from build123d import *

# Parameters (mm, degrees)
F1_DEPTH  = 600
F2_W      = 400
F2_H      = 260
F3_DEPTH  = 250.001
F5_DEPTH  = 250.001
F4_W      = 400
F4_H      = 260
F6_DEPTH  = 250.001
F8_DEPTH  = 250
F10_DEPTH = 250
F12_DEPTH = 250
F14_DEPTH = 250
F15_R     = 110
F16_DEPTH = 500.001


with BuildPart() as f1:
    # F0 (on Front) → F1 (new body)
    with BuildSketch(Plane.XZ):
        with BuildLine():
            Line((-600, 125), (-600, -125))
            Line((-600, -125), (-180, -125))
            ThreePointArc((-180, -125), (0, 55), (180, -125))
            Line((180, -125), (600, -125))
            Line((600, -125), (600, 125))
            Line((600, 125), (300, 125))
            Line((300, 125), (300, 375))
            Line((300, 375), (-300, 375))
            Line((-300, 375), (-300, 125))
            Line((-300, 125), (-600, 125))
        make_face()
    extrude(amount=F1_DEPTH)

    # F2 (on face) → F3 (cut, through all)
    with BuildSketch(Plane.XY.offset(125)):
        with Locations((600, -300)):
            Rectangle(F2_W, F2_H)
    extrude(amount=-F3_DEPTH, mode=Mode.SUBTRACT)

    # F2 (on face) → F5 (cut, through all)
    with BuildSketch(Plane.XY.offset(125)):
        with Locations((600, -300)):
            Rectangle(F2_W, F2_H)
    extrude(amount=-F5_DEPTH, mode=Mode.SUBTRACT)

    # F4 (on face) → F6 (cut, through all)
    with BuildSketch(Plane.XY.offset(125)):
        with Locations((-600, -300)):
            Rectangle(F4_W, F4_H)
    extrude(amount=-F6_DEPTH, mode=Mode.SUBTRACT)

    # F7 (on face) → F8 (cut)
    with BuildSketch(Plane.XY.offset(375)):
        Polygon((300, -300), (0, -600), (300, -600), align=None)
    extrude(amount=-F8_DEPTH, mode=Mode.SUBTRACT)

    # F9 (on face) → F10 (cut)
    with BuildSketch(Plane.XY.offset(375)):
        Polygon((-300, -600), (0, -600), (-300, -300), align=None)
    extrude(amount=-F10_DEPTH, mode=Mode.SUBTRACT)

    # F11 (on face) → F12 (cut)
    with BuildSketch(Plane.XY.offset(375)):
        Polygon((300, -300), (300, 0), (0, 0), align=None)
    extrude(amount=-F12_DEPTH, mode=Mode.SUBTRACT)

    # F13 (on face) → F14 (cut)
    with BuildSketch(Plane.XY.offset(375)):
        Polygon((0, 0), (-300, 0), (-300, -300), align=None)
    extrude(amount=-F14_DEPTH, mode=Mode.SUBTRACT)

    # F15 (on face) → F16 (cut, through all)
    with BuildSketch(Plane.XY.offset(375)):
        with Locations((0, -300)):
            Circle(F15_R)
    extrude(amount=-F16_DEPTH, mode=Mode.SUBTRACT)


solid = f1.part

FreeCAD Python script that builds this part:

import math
import FreeCAD as App
import Part
import Sketcher
Q = App.Units.Quantity


def add_polygon(sketch, points):
    """Adds a closed chain of lines whose ends are joined by coincident constraints."""
    first, n = sketch.GeometryCount, len(points)
    for a, b in zip(points, points[1:] + points[:1]):
        sketch.addGeometry(Part.LineSegment(App.Vector(*a, 0), App.Vector(*b, 0)), False)
    for i in range(n):
        sketch.addConstraint(Sketcher.Constraint("Coincident", first + i, 2, first + (i + 1) % n, 1))

doc = App.newDocument("Part")
body = doc.addObject("PartDesign::Body", "Body")

sketch1 = doc.addObject("Sketcher::SketchObject", "Sketch")
body.addObject(sketch1)
sketch1.AttachmentSupport = (doc.XZ_Plane, [""])
sketch1.MapMode = "FlatFace"
sketch1.addGeometry(Part.LineSegment(App.Vector(-600, 125, 0), App.Vector(-600, -125, 0)), False)
sketch1.addGeometry(Part.LineSegment(App.Vector(-600, -125, 0), App.Vector(-180, -125, 0)), False)
sketch1.addGeometry(Part.ArcOfCircle(Part.Circle(App.Vector(0, -125, 0), App.Vector(0, 0, 1), 180), math.radians(0), math.radians(180)), False)
sketch1.addGeometry(Part.LineSegment(App.Vector(180, -125, 0), App.Vector(600, -125, 0)), False)
sketch1.addGeometry(Part.LineSegment(App.Vector(600, -125, 0), App.Vector(600, 125, 0)), False)
sketch1.addGeometry(Part.LineSegment(App.Vector(600, 125, 0), App.Vector(300, 125, 0)), False)
sketch1.addGeometry(Part.LineSegment(App.Vector(300, 125, 0), App.Vector(300, 375, 0)), False)
sketch1.addGeometry(Part.LineSegment(App.Vector(300, 375, 0), App.Vector(-300, 375, 0)), False)
sketch1.addGeometry(Part.LineSegment(App.Vector(-300, 375, 0), App.Vector(-300, 125, 0)), False)
sketch1.addGeometry(Part.LineSegment(App.Vector(-300, 125, 0), App.Vector(-600, 125, 0)), False)
sketch1.addConstraint(Sketcher.Constraint("Coincident", 0, 2, 1, 1))
sketch1.addConstraint(Sketcher.Constraint("Coincident", 1, 2, 2, 2))
sketch1.addConstraint(Sketcher.Constraint("Coincident", 2, 1, 3, 1))
sketch1.addConstraint(Sketcher.Constraint("Coincident", 3, 2, 4, 1))
sketch1.addConstraint(Sketcher.Constraint("Coincident", 4, 2, 5, 1))
sketch1.addConstraint(Sketcher.Constraint("Coincident", 5, 2, 6, 1))
sketch1.addConstraint(Sketcher.Constraint("Coincident", 6, 2, 7, 1))
sketch1.addConstraint(Sketcher.Constraint("Coincident", 7, 2, 8, 1))
sketch1.addConstraint(Sketcher.Constraint("Coincident", 8, 2, 9, 1))
sketch1.addConstraint(Sketcher.Constraint("Coincident", 9, 2, 0, 1))
sketch1.addConstraint(Sketcher.Constraint("Vertical", 0))
sketch1.addConstraint(Sketcher.Constraint("Horizontal", 1))
sketch1.addConstraint(Sketcher.Constraint("Horizontal", 3))
sketch1.addConstraint(Sketcher.Constraint("Vertical", 4))
sketch1.addConstraint(Sketcher.Constraint("Horizontal", 5))
sketch1.addConstraint(Sketcher.Constraint("Vertical", 6))
sketch1.addConstraint(Sketcher.Constraint("Horizontal", 7))
sketch1.addConstraint(Sketcher.Constraint("Vertical", 8))
sketch1.addConstraint(Sketcher.Constraint("Horizontal", 9))
sketch1.addConstraint(Sketcher.Constraint("Symmetric", 0, 2, 4, 2, -1, 1))
sketch1.addConstraint(Sketcher.Constraint("Symmetric", 1, 2, 2, 1, -2))
sketch1.addConstraint(Sketcher.Constraint("Symmetric", 5, 2, 8, 2, -2))
sketch1.addConstraint(Sketcher.Constraint("Horizontal", 2, 3, 0, 2))
sketch1.addConstraint(Sketcher.Constraint("Equal", 4, 6))
sketch1.addConstraint(Sketcher.Constraint("Radius", 2, Q("180 mm")))
sketch1.addConstraint(Sketcher.Constraint("DistanceX", 1, 1, 1, 2, Q("420 mm")))
sketch1.addConstraint(Sketcher.Constraint("DistanceX", 5, 2, 5, 1, Q("300 mm")))
sketch1.addConstraint(Sketcher.Constraint("DistanceY", 0, 2, 0, 1, Q("250 mm")))
pad1 = doc.addObject("PartDesign::Pad", "Pad")
body.addObject(pad1)
pad1.Profile = sketch1
pad1.Length = 600

sketch2 = doc.addObject("Sketcher::SketchObject", "Sketch001")
body.addObject(sketch2)
sketch2.AttachmentSupport = (doc.XY_Plane, [""])
sketch2.MapMode = "FlatFace"
sketch2.AttachmentOffset = App.Placement(App.Vector(0, 0, 125), App.Rotation())
add_polygon(sketch2, [(400, -170), (400, -430), (800, -430), (800, -170)])
sketch2.addConstraint(Sketcher.Constraint("Vertical", 0))
sketch2.addConstraint(Sketcher.Constraint("Horizontal", 1))
sketch2.addConstraint(Sketcher.Constraint("Vertical", 2))
sketch2.addConstraint(Sketcher.Constraint("Horizontal", 3))
sketch2.addConstraint(Sketcher.Constraint("DistanceX", 1, 1, 1, 2, Q("400 mm")))
sketch2.addConstraint(Sketcher.Constraint("DistanceY", 0, 2, 0, 1, Q("260 mm")))
sketch2.addConstraint(Sketcher.Constraint("DistanceX", -1, 1, 0, 2, Q("400 mm")))
sketch2.addConstraint(Sketcher.Constraint("DistanceY", 0, 2, -1, 1, Q("430 mm")))
pocket1 = doc.addObject("PartDesign::Pocket", "Pocket")
body.addObject(pocket1)
pocket1.Profile = sketch2
pocket1.Type = "ThroughAll"

sketch3 = doc.addObject("Sketcher::SketchObject", "Sketch002")
body.addObject(sketch3)
sketch3.AttachmentSupport = (doc.XY_Plane, [""])
sketch3.MapMode = "FlatFace"
sketch3.AttachmentOffset = App.Placement(App.Vector(0, 0, 125), App.Rotation())
add_polygon(sketch3, [(400, -170), (400, -430), (800, -430), (800, -170)])
sketch3.addConstraint(Sketcher.Constraint("Vertical", 0))
sketch3.addConstraint(Sketcher.Constraint("Horizontal", 1))
sketch3.addConstraint(Sketcher.Constraint("Vertical", 2))
sketch3.addConstraint(Sketcher.Constraint("Horizontal", 3))
sketch3.addConstraint(Sketcher.Constraint("DistanceX", 1, 1, 1, 2, Q("400 mm")))
sketch3.addConstraint(Sketcher.Constraint("DistanceY", 0, 2, 0, 1, Q("260 mm")))
sketch3.addConstraint(Sketcher.Constraint("DistanceX", -1, 1, 0, 2, Q("400 mm")))
sketch3.addConstraint(Sketcher.Constraint("DistanceY", 0, 2, -1, 1, Q("430 mm")))
pocket2 = doc.addObject("PartDesign::Pocket", "Pocket001")
body.addObject(pocket2)
pocket2.Profile = sketch3
pocket2.Type = "ThroughAll"

sketch4 = doc.addObject("Sketcher::SketchObject", "Sketch003")
body.addObject(sketch4)
sketch4.AttachmentSupport = (doc.XY_Plane, [""])
sketch4.MapMode = "FlatFace"
sketch4.AttachmentOffset = App.Placement(App.Vector(0, 0, 125), App.Rotation())
add_polygon(sketch4, [(-800, -170), (-800, -430), (-400, -430), (-400, -170)])
sketch4.addConstraint(Sketcher.Constraint("Vertical", 0))
sketch4.addConstraint(Sketcher.Constraint("Horizontal", 1))
sketch4.addConstraint(Sketcher.Constraint("Vertical", 2))
sketch4.addConstraint(Sketcher.Constraint("Horizontal", 3))
sketch4.addConstraint(Sketcher.Constraint("DistanceX", 1, 1, 1, 2, Q("400 mm")))
sketch4.addConstraint(Sketcher.Constraint("DistanceY", 0, 2, 0, 1, Q("260 mm")))
sketch4.addConstraint(Sketcher.Constraint("DistanceX", 0, 2, -1, 1, Q("800 mm")))
sketch4.addConstraint(Sketcher.Constraint("DistanceY", 0, 2, -1, 1, Q("430 mm")))
pocket3 = doc.addObject("PartDesign::Pocket", "Pocket002")
body.addObject(pocket3)
pocket3.Profile = sketch4
pocket3.Type = "ThroughAll"

sketch5 = doc.addObject("Sketcher::SketchObject", "Sketch004")
body.addObject(sketch5)
sketch5.AttachmentSupport = (doc.XY_Plane, [""])
sketch5.MapMode = "FlatFace"
sketch5.AttachmentOffset = App.Placement(App.Vector(0, 0, 375), App.Rotation())
add_polygon(sketch5, [(300, -300), (0, -600), (300, -600)])
sketch5.addConstraint(Sketcher.Constraint("Horizontal", 1))
sketch5.addConstraint(Sketcher.Constraint("Vertical", 2))
sketch5.addConstraint(Sketcher.Constraint("PointOnObject", 0, 2, -2))
sketch5.addConstraint(Sketcher.Constraint("Equal", 1, 2))
sketch5.addConstraint(Sketcher.Constraint("DistanceX", 1, 1, 1, 2, Q("300 mm")))
sketch5.addConstraint(Sketcher.Constraint("DistanceY", 0, 2, -1, 1, Q("600 mm")))
pocket4 = doc.addObject("PartDesign::Pocket", "Pocket003")
body.addObject(pocket4)
pocket4.Profile = sketch5
pocket4.Length = 250

sketch6 = doc.addObject("Sketcher::SketchObject", "Sketch005")
body.addObject(sketch6)
sketch6.AttachmentSupport = (doc.XY_Plane, [""])
sketch6.MapMode = "FlatFace"
sketch6.AttachmentOffset = App.Placement(App.Vector(0, 0, 375), App.Rotation())
add_polygon(sketch6, [(-300, -600), (0, -600), (-300, -300)])
sketch6.addConstraint(Sketcher.Constraint("Horizontal", 0))
sketch6.addConstraint(Sketcher.Constraint("Vertical", 2))
sketch6.addConstraint(Sketcher.Constraint("PointOnObject", 0, 2, -2))
sketch6.addConstraint(Sketcher.Constraint("Equal", 0, 2))
sketch6.addConstraint(Sketcher.Constraint("DistanceX", 0, 1, 0, 2, Q("300 mm")))
sketch6.addConstraint(Sketcher.Constraint("DistanceY", 0, 2, -1, 1, Q("600 mm")))
pocket5 = doc.addObject("PartDesign::Pocket", "Pocket004")
body.addObject(pocket5)
pocket5.Profile = sketch6
pocket5.Length = 250

sketch7 = doc.addObject("Sketcher::SketchObject", "Sketch006")
body.addObject(sketch7)
sketch7.AttachmentSupport = (doc.XY_Plane, [""])
sketch7.MapMode = "FlatFace"
sketch7.AttachmentOffset = App.Placement(App.Vector(0, 0, 375), App.Rotation())
add_polygon(sketch7, [(300, -300), (300, 0), (0, 0)])
sketch7.addConstraint(Sketcher.Constraint("Vertical", 0))
sketch7.addConstraint(Sketcher.Constraint("Horizontal", 1))
sketch7.addConstraint(Sketcher.Constraint("Coincident", 1, 2, -1, 1))
sketch7.addConstraint(Sketcher.Constraint("Equal", 1, 0))
sketch7.addConstraint(Sketcher.Constraint("DistanceX", 1, 2, 1, 1, Q("300 mm")))
pocket6 = doc.addObject("PartDesign::Pocket", "Pocket005")
body.addObject(pocket6)
pocket6.Profile = sketch7
pocket6.Length = 250

sketch8 = doc.addObject("Sketcher::SketchObject", "Sketch007")
body.addObject(sketch8)
sketch8.AttachmentSupport = (doc.XY_Plane, [""])
sketch8.MapMode = "FlatFace"
sketch8.AttachmentOffset = App.Placement(App.Vector(0, 0, 375), App.Rotation())
add_polygon(sketch8, [(0, 0), (-300, 0), (-300, -300)])
sketch8.addConstraint(Sketcher.Constraint("Horizontal", 0))
sketch8.addConstraint(Sketcher.Constraint("Vertical", 1))
sketch8.addConstraint(Sketcher.Constraint("Coincident", 2, 2, -1, 1))
sketch8.addConstraint(Sketcher.Constraint("Equal", 0, 1))
sketch8.addConstraint(Sketcher.Constraint("DistanceX", 0, 2, 0, 1, Q("300 mm")))
pocket7 = doc.addObject("PartDesign::Pocket", "Pocket006")
body.addObject(pocket7)
pocket7.Profile = sketch8
pocket7.Length = 250

sketch9 = doc.addObject("Sketcher::SketchObject", "Sketch008")
body.addObject(sketch9)
sketch9.AttachmentSupport = (doc.XY_Plane, [""])
sketch9.MapMode = "FlatFace"
sketch9.AttachmentOffset = App.Placement(App.Vector(0, 0, 375), App.Rotation())
sketch9.addGeometry(Part.Circle(App.Vector(0, -300, 0), App.Vector(0, 0, 1), 110), False)
sketch9.addConstraint(Sketcher.Constraint("PointOnObject", 0, 3, -2))
sketch9.addConstraint(Sketcher.Constraint("Diameter", 0, Q("220 mm")))
sketch9.addConstraint(Sketcher.Constraint("DistanceY", 0, 3, -1, 1, Q("300 mm")))
pocket8 = doc.addObject("PartDesign::Pocket", "Pocket007")
body.addObject(pocket8)
pocket8.Profile = sketch9
pocket8.Type = "ThroughAll"

doc.recompute()
